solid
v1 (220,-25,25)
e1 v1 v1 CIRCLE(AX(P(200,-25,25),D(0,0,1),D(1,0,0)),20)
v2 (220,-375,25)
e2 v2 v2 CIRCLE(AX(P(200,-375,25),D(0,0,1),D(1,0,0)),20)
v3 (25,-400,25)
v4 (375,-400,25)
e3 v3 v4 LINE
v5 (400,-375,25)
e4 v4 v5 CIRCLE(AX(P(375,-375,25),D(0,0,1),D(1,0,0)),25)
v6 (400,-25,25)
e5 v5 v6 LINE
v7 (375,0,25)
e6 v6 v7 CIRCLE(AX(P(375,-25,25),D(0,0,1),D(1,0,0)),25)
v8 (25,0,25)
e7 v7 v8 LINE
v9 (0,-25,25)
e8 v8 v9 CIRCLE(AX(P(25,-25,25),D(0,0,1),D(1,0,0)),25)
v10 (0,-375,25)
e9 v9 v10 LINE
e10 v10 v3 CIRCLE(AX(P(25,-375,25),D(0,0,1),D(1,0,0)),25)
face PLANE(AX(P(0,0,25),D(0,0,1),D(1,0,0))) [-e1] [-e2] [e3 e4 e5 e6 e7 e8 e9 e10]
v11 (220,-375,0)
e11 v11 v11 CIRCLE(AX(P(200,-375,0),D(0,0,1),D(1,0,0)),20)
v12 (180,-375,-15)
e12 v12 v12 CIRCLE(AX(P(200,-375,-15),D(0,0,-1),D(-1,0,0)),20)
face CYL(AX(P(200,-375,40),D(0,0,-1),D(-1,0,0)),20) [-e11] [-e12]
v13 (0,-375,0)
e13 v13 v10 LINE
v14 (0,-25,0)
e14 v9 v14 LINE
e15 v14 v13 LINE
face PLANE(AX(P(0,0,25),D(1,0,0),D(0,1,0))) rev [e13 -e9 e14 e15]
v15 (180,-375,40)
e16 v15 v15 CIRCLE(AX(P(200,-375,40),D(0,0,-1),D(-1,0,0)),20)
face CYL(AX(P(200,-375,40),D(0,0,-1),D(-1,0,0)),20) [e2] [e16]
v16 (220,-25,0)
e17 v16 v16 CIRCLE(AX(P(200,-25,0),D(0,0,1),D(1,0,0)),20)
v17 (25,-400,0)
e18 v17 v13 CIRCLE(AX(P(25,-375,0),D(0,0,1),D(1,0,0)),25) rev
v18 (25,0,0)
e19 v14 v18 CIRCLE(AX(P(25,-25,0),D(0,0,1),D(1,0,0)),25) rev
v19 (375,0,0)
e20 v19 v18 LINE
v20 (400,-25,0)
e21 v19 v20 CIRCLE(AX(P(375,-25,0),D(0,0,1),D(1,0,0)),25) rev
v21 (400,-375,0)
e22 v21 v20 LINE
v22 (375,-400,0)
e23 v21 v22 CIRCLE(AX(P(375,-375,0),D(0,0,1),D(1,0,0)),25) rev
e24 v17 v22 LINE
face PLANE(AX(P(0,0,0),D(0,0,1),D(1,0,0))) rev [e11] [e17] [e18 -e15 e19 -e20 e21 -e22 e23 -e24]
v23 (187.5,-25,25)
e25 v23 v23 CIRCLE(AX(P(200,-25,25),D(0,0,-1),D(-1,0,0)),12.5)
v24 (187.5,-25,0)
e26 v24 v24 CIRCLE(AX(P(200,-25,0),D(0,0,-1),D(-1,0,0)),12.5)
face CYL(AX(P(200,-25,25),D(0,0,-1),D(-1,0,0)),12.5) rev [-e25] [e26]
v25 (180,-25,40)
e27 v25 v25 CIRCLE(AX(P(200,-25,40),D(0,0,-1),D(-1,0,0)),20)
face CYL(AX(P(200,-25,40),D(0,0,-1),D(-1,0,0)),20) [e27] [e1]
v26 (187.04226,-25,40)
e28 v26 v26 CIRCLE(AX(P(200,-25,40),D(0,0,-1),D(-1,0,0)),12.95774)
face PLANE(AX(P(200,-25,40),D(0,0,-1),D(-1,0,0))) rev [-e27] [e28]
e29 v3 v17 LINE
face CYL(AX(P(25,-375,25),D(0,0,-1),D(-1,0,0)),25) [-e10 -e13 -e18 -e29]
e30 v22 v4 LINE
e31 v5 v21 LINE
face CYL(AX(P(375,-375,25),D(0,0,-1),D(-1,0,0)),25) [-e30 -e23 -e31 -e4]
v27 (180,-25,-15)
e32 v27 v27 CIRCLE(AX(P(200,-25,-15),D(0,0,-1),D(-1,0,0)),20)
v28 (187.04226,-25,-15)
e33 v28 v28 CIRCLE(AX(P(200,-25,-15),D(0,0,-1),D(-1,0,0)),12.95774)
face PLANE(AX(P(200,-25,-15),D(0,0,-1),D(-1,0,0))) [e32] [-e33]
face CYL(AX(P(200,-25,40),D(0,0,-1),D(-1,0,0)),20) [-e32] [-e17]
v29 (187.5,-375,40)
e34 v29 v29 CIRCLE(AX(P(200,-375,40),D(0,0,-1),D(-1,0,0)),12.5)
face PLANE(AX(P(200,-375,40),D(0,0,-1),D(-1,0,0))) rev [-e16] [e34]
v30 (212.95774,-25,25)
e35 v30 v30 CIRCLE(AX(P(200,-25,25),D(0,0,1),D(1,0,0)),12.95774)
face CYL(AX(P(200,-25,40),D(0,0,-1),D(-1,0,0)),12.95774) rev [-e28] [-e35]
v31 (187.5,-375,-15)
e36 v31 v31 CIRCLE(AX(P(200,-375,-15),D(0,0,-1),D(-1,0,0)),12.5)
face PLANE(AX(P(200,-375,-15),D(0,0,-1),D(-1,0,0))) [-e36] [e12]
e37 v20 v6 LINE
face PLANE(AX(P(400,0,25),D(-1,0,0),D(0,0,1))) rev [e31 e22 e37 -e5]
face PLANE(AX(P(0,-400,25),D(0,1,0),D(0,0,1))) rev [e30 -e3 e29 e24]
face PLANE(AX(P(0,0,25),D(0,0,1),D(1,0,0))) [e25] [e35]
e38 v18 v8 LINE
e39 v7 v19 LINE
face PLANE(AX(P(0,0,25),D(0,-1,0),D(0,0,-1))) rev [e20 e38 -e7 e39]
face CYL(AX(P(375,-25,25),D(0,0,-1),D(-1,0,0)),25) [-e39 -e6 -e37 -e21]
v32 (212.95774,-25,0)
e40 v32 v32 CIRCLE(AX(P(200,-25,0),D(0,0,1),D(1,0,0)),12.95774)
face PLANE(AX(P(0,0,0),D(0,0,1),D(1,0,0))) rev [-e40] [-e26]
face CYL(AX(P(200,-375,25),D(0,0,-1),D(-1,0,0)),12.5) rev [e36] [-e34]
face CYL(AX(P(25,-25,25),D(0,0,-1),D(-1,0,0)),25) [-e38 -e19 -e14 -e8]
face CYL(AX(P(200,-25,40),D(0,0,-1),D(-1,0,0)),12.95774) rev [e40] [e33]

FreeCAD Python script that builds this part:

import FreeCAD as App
import Part
import Sketcher

V = App.Vector


def edges_at(feature, points):
    """Names of the edges that pass closest to the given points."""
    edges = feature.Shape.Edges
    near = lambda p: min(range(len(edges)), key=lambda i: edges[i].distToShape(Part.Vertex(*p))[0])
    return sorted({f"Edge{near(p) + 1}" for p in points})

doc = App.newDocument("Part")
params = doc.addObject("Spreadsheet::Sheet", "Params")
for row, (alias, value) in enumerate([
    ("sketch1_width", "400 mm"),
    ("pad1_length", "25 mm"),
    ("fillet_radius", "25 mm"),
    ("sketch2_diameter", "25 mm"),
    ("pocket1_length", "25 mm"),
    ("sketch3_diameter", "40 mm"),
    ("sketch3_diameter2", "25 mm"),
    ("pad2_length", "15 mm"),
    ("pad2_length2", "40 mm"),
], start=1):
    params.set(f"A{row}", alias)
    params.set(f"B{row}", "=" + value)
    params.setAlias(f"B{row}", alias)

body = doc.addObject("PartDesign::Body", "Body")

# Sketch on XY plane
sketch1 = body.newObject("Sketcher::SketchObject", "Sketch")
sketch1.AttachmentSupport = (doc.getObject("XY_Plane"), [""])
sketch1.MapMode = "FlatFace"
sketch1.addGeometry([
    Part.LineSegment(V(0, 0, 0), V(0, -400, 0)),
    Part.LineSegment(V(0, -400, 0), V(400, -400, 0)),
    Part.LineSegment(V(400, -400, 0), V(400, 0, 0)),
    Part.LineSegment(V(400, 0, 0), V(0, 0, 0)),
], False)
sketch1.addConstraint([
    Sketcher.Constraint("Coincident", 0, 2, 1, 1),
    Sketcher.Constraint("Coincident", 1, 2, 2, 1),
    Sketcher.Constraint("Coincident", 2, 2, 3, 1),
    Sketcher.Constraint("Coincident", 3, 2, 0, 1),
    Sketcher.Constraint("Vertical", 0),
    Sketcher.Constraint("Horizontal", 1),
    Sketcher.Constraint("Vertical", 2),
    Sketcher.Constraint("Horizontal", 3),
    Sketcher.Constraint("Coincident", 3, 2, -1, 1),
    Sketcher.Constraint("Equal", 3, 0),
    Sketcher.Constraint("DistanceX", 1, 1, 1, 2, 400.0),
])
sketch1.setExpression("Constraints[10]", "Params.sketch1_width")
pad1 = body.newObject("PartDesign::Pad", "Pad")
pad1.Profile = sketch1
pad1.setExpression("Length", "Params.pad1_length")
doc.recompute()

fillet = body.newObject("PartDesign::Fillet", "Fillet")
fillet.Base = (pad1, edges_at(pad1, [
    (0, 0, 12.5),
    (400, 0, 12.5),
    (400, -400, 12.5),
    (0, -400, 12.5),
]))
fillet.setExpression("Radius", "Params.fillet_radius")

# Sketch on XY plane
sketch2 = body.newObject("Sketcher::SketchObject", "Sketch001")
sketch2.AttachmentSupport = (doc.getObject("XY_Plane"), [""])
sketch2.MapMode = "FlatFace"
sketch2.addGeometry([
    Part.Circle(V(200, -25, 0), V(0, 0, 1), 12.5),
    Part.Circle(V(200, -375, 0), V(0, 0, 1), 12.5),
], False)
sketch2.addConstraint([
    Sketcher.Constraint("Equal", 0, 1),
    Sketcher.Constraint("Vertical", 0, 3, 1, 3),
    Sketcher.Constraint("Diameter", 0, 25.0),
    Sketcher.Constraint("DistanceX", -1, 1, 0, 3, 200.0),
    Sketcher.Constraint("DistanceY", 0, 3, -1, 1, 25.0),
    Sketcher.Constraint("DistanceY", 1, 3, -1, 1, 375.0),
])
sketch2.setExpression("Constraints[2]", "Params.sketch2_diameter")
pocket1 = body.newObject("PartDesign::Pocket", "Pocket")
pocket1.Profile = sketch2
pocket1.setExpression("Length", "Params.pocket1_length")
pocket1.Reversed = True

# Sketch on XY plane
sketch3 = body.newObject("Sketcher::SketchObject", "Sketch002")
sketch3.AttachmentSupport = (doc.getObject("XY_Plane"), [""])
sketch3.MapMode = "FlatFace"
sketch3.addGeometry([
    Part.Circle(V(200, -25, 0), V(0, 0, 1), 20),
    Part.Circle(V(200, -25, 0), V(0, 0, 1), 12.95774),
    Part.Circle(V(200, -375, 0), V(0, 0, 1), 20),
    Part.Circle(V(200, -375, 0), V(0, 0, 1), 12.5),
], False)
sketch3.addConstraint([
    Sketcher.Constraint("Coincident", 1, 3, 0, 3),
    Sketcher.Constraint("Coincident", 3, 3, 2, 3),
    Sketcher.Constraint("Equal", 0, 2),
    Sketcher.Constraint("Vertical", 1, 3, 2, 3),
    Sketcher.Constraint("Diameter", 0, 40.0),
    Sketcher.Constraint("Diameter", 3, 25.0),
    Sketcher.Constraint("DistanceX", -1, 1, 0, 3, 200.0),
    Sketcher.Constraint("DistanceY", 0, 3, -1, 1, 25.0),
    Sketcher.Constraint("DistanceY", 2, 3, -1, 1, 375.0),
    Sketcher.Constraint("Diameter", 1, 25.91548),
])
sketch3.setExpression("Constraints[4]", "Params.sketch3_diameter")
sketch3.setExpression("Constraints[5]", "Params.sketch3_diameter2")
pad2 = body.newObject("PartDesign::Pad", "Pad001")
pad2.Profile = sketch3
pad2.Type = "TwoLengths"
pad2.setExpression("Length", "Params.pad2_length")
pad2.setExpression("Length2", "Params.pad2_length2")
pad2.Reversed = True

doc.recompute()
